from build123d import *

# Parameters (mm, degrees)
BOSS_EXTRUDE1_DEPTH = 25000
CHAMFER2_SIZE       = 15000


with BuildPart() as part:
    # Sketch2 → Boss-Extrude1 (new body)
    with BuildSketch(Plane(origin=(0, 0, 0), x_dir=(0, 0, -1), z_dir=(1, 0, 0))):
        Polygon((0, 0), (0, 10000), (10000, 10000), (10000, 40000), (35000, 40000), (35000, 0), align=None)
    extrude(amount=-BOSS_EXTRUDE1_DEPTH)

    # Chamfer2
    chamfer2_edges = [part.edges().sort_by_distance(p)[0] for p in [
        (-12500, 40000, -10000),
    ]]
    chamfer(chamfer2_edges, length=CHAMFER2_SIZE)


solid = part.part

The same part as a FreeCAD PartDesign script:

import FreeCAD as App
import Part
import Sketcher
Q = App.Units.Quantity


def edges_at(feature, points):
    """Names of the edges that pass closest to the given points."""
    edges = feature.Shape.Edges
    near = lambda p: min(range(len(edges)), key=lambda i: edges[i].distToShape(Part.Vertex(*p))[0])
    return sorted({f"Edge{near(p) + 1}" for p in points})


def add_polygon(sketch, points):
    """Adds a closed chain of lines whose ends are joined by coincident constraints."""
    first, n = sketch.GeometryCount, len(points)
    for a, b in zip(points, points[1:] + points[:1]):
        sketch.addGeometry(Part.LineSegment(App.Vector(*a, 0), App.Vector(*b, 0)), False)
    for i in range(n):
        sketch.addConstraint(Sketcher.Constraint("Coincident", first + i, 2, first + (i + 1) % n, 1))

doc = App.newDocument("Part")
body = doc.addObject("PartDesign::Body", "Body")

sketch1 = doc.addObject("Sketcher::SketchObject", "Sketch")
body.addObject(sketch1)
sketch1.AttachmentSupport = (doc.YZ_Plane, [""])
sketch1.MapMode = "FlatFace"
add_polygon(sketch1, [(10000, 0), (0, 0), (0, -35000), (40000, -35000), (40000, -10000), (10000, -10000)])
sketch1.addConstraint(Sketcher.Constraint("Horizontal", 0))
sketch1.addConstraint(Sketcher.Constraint("Vertical", 1))
sketch1.addConstraint(Sketcher.Constraint("Horizontal", 2))
sketch1.addConstraint(Sketcher.Constraint("Vertical", 3))
sketch1.addConstraint(Sketcher.Constraint("Horizontal", 4))
sketch1.addConstraint(Sketcher.Constraint("Vertical", 5))
sketch1.addConstraint(Sketcher.Constraint("Coincident", 0, 2, -1, 1))
sketch1.addConstraint(Sketcher.Constraint("Equal", 0, 5))
sketch1.addConstraint(Sketcher.Constraint("DistanceX", 0, 2, 0, 1, Q("10000 mm")))
sketch1.addConstraint(Sketcher.Constraint("DistanceX", 2, 1, 2, 2, Q("40000 mm")))
sketch1.addConstraint(Sketcher.Constraint("DistanceY", 1, 2, 1, 1, Q("35000 mm")))
pad1 = doc.addObject("PartDesign::Pad", "Pad")
body.addObject(pad1)
pad1.Profile = sketch1
pad1.Length = 25000
pad1.Reversed = True
doc.recompute()

chamfer = doc.addObject("PartDesign::Chamfer", "Chamfer")
body.addObject(chamfer)
chamfer.Base = (pad1, edges_at(pad1, [(-12500, 40000, -10000)]))
chamfer.Size = 15000

doc.recompute()
